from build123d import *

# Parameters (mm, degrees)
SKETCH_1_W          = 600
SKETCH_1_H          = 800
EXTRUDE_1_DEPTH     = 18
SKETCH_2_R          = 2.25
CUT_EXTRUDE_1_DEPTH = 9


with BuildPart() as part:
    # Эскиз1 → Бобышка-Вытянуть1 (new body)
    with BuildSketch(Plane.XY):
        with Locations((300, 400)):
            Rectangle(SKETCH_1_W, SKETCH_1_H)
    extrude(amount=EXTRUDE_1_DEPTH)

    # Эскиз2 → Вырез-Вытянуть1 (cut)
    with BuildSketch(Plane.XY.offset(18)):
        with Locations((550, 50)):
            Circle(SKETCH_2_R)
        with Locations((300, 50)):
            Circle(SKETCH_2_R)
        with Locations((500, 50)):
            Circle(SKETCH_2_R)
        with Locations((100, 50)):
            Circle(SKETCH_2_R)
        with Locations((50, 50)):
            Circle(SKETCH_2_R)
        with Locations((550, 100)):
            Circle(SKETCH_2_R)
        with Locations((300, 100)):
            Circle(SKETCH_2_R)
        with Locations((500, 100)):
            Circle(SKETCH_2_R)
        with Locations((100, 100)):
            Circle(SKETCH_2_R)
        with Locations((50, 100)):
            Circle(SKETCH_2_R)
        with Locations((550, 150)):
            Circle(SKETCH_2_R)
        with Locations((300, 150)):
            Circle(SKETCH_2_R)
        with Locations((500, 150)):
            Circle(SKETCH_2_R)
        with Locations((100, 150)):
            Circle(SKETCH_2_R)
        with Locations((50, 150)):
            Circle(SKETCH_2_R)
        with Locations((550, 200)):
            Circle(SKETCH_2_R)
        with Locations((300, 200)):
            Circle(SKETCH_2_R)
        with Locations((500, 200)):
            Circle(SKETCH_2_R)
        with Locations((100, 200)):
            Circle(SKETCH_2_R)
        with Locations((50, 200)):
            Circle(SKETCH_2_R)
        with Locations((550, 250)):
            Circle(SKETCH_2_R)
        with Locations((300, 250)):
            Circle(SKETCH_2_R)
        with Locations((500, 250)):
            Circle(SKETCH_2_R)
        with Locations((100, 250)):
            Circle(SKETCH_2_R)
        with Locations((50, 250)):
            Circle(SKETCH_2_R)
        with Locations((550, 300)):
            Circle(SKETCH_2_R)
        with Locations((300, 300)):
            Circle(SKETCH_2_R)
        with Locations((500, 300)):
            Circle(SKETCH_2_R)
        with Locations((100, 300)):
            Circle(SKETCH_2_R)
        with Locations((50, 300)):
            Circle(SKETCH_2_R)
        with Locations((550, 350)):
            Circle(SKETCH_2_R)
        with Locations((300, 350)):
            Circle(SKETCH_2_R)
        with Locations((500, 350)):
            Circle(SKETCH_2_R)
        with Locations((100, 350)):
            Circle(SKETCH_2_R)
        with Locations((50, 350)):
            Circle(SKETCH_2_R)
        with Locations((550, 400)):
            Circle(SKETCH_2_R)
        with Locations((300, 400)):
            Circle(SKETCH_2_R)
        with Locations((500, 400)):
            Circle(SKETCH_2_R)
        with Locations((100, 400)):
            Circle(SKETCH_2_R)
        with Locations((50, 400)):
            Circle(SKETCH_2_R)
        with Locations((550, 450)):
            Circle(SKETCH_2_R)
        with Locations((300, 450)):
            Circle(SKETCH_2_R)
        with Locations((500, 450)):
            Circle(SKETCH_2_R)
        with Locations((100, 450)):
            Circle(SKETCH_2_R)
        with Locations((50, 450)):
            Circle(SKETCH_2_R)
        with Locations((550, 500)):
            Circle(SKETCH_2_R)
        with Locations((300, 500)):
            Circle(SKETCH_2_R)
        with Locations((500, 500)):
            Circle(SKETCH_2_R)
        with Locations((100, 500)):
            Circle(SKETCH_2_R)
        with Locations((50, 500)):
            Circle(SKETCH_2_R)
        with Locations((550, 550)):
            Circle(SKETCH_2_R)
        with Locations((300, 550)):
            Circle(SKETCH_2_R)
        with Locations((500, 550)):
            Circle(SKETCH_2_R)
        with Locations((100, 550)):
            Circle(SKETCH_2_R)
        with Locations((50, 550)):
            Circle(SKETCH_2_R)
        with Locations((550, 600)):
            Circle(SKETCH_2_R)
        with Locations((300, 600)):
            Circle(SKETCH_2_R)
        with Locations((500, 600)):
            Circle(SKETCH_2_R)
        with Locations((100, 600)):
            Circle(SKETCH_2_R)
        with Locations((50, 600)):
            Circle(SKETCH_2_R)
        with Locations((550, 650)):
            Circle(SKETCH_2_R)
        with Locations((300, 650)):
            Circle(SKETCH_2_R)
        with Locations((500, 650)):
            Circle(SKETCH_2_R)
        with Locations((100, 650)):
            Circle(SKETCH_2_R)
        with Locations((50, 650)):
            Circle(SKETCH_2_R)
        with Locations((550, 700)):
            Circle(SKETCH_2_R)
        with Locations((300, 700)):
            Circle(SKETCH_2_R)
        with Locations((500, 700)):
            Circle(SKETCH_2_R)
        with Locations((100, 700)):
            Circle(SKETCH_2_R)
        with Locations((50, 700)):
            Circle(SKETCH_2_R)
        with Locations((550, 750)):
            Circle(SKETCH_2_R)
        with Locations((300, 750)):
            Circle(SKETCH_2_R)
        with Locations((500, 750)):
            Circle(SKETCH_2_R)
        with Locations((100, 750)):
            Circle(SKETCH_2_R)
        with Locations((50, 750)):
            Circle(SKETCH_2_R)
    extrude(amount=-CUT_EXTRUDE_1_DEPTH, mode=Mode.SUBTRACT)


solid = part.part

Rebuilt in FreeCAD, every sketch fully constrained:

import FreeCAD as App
import Part
import Sketcher
Q = App.Units.Quantity

doc = App.newDocument("Part")
params = doc.addObject("Spreadsheet::Sheet", "Params")
for row, (alias, value) in enumerate([
    ("sketch1_width", "600 mm"),
    ("sketch1_height", "800 mm"),
    ("pad1_length", "18 mm"),
    ("sketch2_diameter", "4.5 mm"),
    ("pocket1_length", "9 mm"),
], start=1):
    params.set(f"A{row}", alias)
    params.set(f"B{row}", "=" + value)
    params.setAlias(f"B{row}", alias)

body = doc.addObject("PartDesign::Body", "Body")

sketch1 = body.newObject("Sketcher::SketchObject", "Sketch")
sketch1.AttachmentSupport = (doc.getObject("XY_Plane"), [""])
sketch1.MapMode = "FlatFace"
sketch1.addGeometry([
    Part.LineSegment(App.Vector(0, 800, 0), App.Vector(0, 0, 0)),
    Part.LineSegment(App.Vector(0, 0, 0), App.Vector(600, 0, 0)),
    Part.LineSegment(App.Vector(600, 0, 0), App.Vector(600, 800, 0)),
    Part.LineSegment(App.Vector(600, 800, 0), App.Vector(0, 800, 0)),
], False)
sketch1.addConstraint([
    Sketcher.Constraint("Coincident", 0, 2, 1, 1),
    Sketcher.Constraint("Coincident", 1, 2, 2, 1),
    Sketcher.Constraint("Coincident", 2, 2, 3, 1),
    Sketcher.Constraint("Coincident", 3, 2, 0, 1),
    Sketcher.Constraint("Vertical", 0),
    Sketcher.Constraint("Horizontal", 1),
    Sketcher.Constraint("Vertical", 2),
    Sketcher.Constraint("Horizontal", 3),
    Sketcher.Constraint("Coincident", 0, 2, -1, 1),
    Sketcher.Constraint("DistanceX", 1, 1, 1, 2, Q("600 mm")),
    Sketcher.Constraint("DistanceY", 0, 2, 0, 1, Q("800 mm")),
])
sketch1.setExpression("Constraints[9]", "Params.sketch1_width")
sketch1.setExpression("Constraints[10]", "Params.sketch1_height")
pad1 = body.newObject("PartDesign::Pad", "Pad")
pad1.Profile = sketch1
pad1.setExpression("Length", "Params.pad1_length")

sketch2 = body.newObject("Sketcher::SketchObject", "Sketch001")
sketch2.AttachmentSupport = (doc.getObject("XY_Plane"), [""])
sketch2.MapMode = "FlatFace"
sketch2.AttachmentOffset = App.Placement(App.Vector(0, 0, 18), App.Rotation())
sketch2.addGeometry([
    Part.Circle(App.Vector(550, 50, 0), App.Vector(0, 0, 1), 2.2),
    Part.Circle(App.Vector(300, 50, 0), App.Vector(0, 0, 1), 2.2),
    Part.Circle(App.Vector(500, 50, 0), App.Vector(0, 0, 1), 2.2),
    Part.Circle(App.Vector(100, 50, 0), App.Vector(0, 0, 1), 2.2),
    Part.Circle(App.Vector(50, 50, 0), App.Vector(0, 0, 1), 2.2),
    Part.Circle(App.Vector(550, 100, 0), App.Vector(0, 0, 1), 2.2),
    Part.Circle(App.Vector(300, 100, 0), App.Vector(0, 0, 1), 2.2),
    Part.Circle(App.Vector(500, 100, 0), App.Vector(0, 0, 1), 2.2),
    Part.Circle(App.Vector(100, 100, 0), App.Vector(0, 0, 1), 2.2),
    Part.Circle(App.Vector(50, 100, 0), App.Vector(0, 0, 1), 2.2),
    Part.Circle(App.Vector(550, 150, 0), App.Vector(0, 0, 1), 2.2),
    Part.Circle(App.Vector(300, 150, 0), App.Vector(0, 0, 1), 2.2),
    Part.Circle(App.Vector(500, 150, 0), App.Vector(0, 0, 1), 2.2),
    Part.Circle(App.Vector(100, 150, 0), App.Vector(0, 0, 1), 2.2),
    Part.Circle(App.Vector(50, 150, 0), App.Vector(0, 0, 1), 2.2),
    Part.Circle(App.Vector(550, 200, 0), App.Vector(0, 0, 1), 2.2),
    Part.Circle(App.Vector(300, 200, 0), App.Vector(0, 0, 1), 2.2),
    Part.Circle(App.Vector(500, 200, 0), App.Vector(0, 0, 1), 2.2),
    Part.Circle(App.Vector(100, 200, 0), App.Vector(0, 0, 1), 2.2),
    Part.Circle(App.Vector(50, 200, 0), App.Vector(0, 0, 1), 2.2),
    Part.Circle(App.Vector(550, 250, 0), App.Vector(0, 0, 1), 2.2),
    Part.Circle(App.Vector(300, 250, 0), App.Vector(0, 0, 1), 2.2),
    Part.Circle(App.Vector(500, 250, 0), App.Vector(0, 0, 1), 2.2),
    Part.Circle(App.Vector(100, 250, 0), App.Vector(0, 0, 1), 2.2),
    Part.Circle(App.Vector(50, 250, 0), App.Vector(0, 0, 1), 2.2),
    Part.Circle(App.Vector(550, 300, 0), App.Vector(0, 0, 1), 2.2),
    Part.Circle(App.Vector(300, 300, 0), App.Vector(0, 0, 1), 2.2),
    Part.Circle(App.Vector(500, 300, 0), App.Vector(0, 0, 1), 2.2),
    Part.Circle(App.Vector(100, 300, 0), App.Vector(0, 0, 1), 2.2),
    Part.Circle(App.Vector(50, 300, 0), App.Vector(0, 0, 1), 2.2),
    Part.Circle(App.Vector(550, 350, 0), App.Vector(0, 0, 1), 2.2),
    Part.Circle(App.Vector(300, 350, 0), App.Vector(0, 0, 1), 2.2),
    Part.Circle(App.Vector(500, 350, 0), App.Vector(0, 0, 1), 2.2),
    Part.Circle(App.Vector(100, 350, 0), App.Vector(0, 0, 1), 2.2),
    Part.Circle(App.Vector(50, 350, 0), App.Vector(0, 0, 1), 2.2),
    Part.Circle(App.Vector(550, 400, 0), App.Vector(0, 0, 1), 2.2),
    Part.Circle(App.Vector(300, 400, 0), App.Vector(0, 0, 1), 2.2),
    Part.Circle(App.Vector(500, 400, 0), App.Vector(0, 0, 1), 2.2),
    Part.Circle(App.Vector(100, 400, 0), App.Vector(0, 0, 1), 2.2),
    Part.Circle(App.Vector(50, 400, 0), App.Vector(0, 0, 1), 2.2),
    Part.Circle(App.Vector(550, 450, 0), App.Vector(0, 0, 1), 2.2),
    Part.Circle(App.Vector(300, 450, 0), App.Vector(0, 0, 1), 2.2),
    Part.Circle(App.Vector(500, 450, 0), App.Vector(0, 0, 1), 2.2),
    Part.Circle(App.Vector(100, 450, 0), App.Vector(0, 0, 1), 2.2),
    Part.Circle(App.Vector(50, 450, 0), App.Vector(0, 0, 1), 2.2),
    Part.Circle(App.Vector(550, 500, 0), App.Vector(0, 0, 1), 2.2),
    Part.Circle(App.Vector(300, 500, 0), App.Vector(0, 0, 1), 2.2),
    Part.Circle(App.Vector(500, 500, 0), App.Vector(0, 0, 1), 2.2),
    Part.Circle(App.Vector(100, 500, 0), App.Vector(0, 0, 1), 2.2),
    Part.Circle(App.Vector(50, 500, 0), App.Vector(0, 0, 1), 2.2),
    Part.Circle(App.Vector(550, 550, 0), App.Vector(0, 0, 1), 2.2),
    Part.Circle(App.Vector(300, 550, 0), App.Vector(0, 0, 1), 2.2),
    Part.Circle(App.Vector(500, 550, 0), App.Vector(0, 0, 1), 2.2),
    Part.Circle(App.Vector(100, 550, 0), App.Vector(0, 0, 1), 2.2),
    Part.Circle(App.Vector(50, 550, 0), App.Vector(0, 0, 1), 2.2),
    Part.Circle(App.Vector(550, 600, 0), App.Vector(0, 0, 1), 2.2),
    Part.Circle(App.Vector(300, 600, 0), App.Vector(0, 0, 1), 2.2),
    Part.Circle(App.Vector(500, 600, 0), App.Vector(0, 0, 1), 2.2),
    Part.Circle(App.Vector(100, 600, 0), App.Vector(0, 0, 1), 2.2),
    Part.Circle(App.Vector(50, 600, 0), App.Vector(0, 0, 1), 2.2),
    Part.Circle(App.Vector(550, 650, 0), App.Vector(0, 0, 1), 2.2),
    Part.Circle(App.Vector(300, 650, 0), App.Vector(0, 0, 1), 2.2),
    Part.Circle(App.Vector(500, 650, 0), App.Vector(0, 0, 1), 2.2),
    Part.Circle(App.Vector(100, 650, 0), App.Vector(0, 0, 1), 2.2),
    Part.Circle(App.Vector(50, 650, 0), App.Vector(0, 0, 1), 2.2),
    Part.Circle(App.Vector(550, 700, 0), App.Vector(0, 0, 1), 2.2),
    Part.Circle(App.Vector(300, 700, 0), App.Vector(0, 0, 1), 2.2),
    Part.Circle(App.Vector(500, 700, 0), App.Vector(0, 0, 1), 2.2),
    Part.Circle(App.Vector(100, 700, 0), App.Vector(0, 0, 1), 2.2),
    Part.Circle(App.Vector(50, 700, 0), App.Vector(0, 0, 1), 2.2),
    Part.Circle(App.Vector(550, 750, 0), App.Vector(0, 0, 1), 2.2),
    Part.Circle(App.Vector(300, 750, 0), App.Vector(0, 0, 1), 2.2),
    Part.Circle(App.Vector(500, 750, 0), App.Vector(0, 0, 1), 2.2),
    Part.Circle(App.Vector(100, 750, 0), App.Vector(0, 0, 1), 2.2),
    Part.Circle(App.Vector(50, 750, 0), App.Vector(0, 0, 1), 2.2),
], False)
sketch2.addConstraint([
    Sketcher.Constraint("Equal", 0, 1),
    Sketcher.Constraint("Equal", 1, 2),
    Sketcher.Constraint("Equal", 2, 3),
    Sketcher.Constraint("Equal", 3, 4),
    Sketcher.Constraint("Equal", 4, 5),
    Sketcher.Constraint("Equal", 5, 6),
    Sketcher.Constraint("Equal", 6, 7),
    Sketcher.Constraint("Equal", 7, 8),
    Sketcher.Constraint("Equal", 8, 9),
    Sketcher.Constraint("Equal", 9, 10),
    Sketcher.Constraint("Equal", 10, 11),
    Sketcher.Constraint("Equal", 11, 12),
    Sketcher.Constraint("Equal", 12, 13),
    Sketcher.Constraint("Equal", 13, 14),
    Sketcher.Constraint("Equal", 14, 15),
    Sketcher.Constraint("Equal", 15, 16),
    Sketcher.Constraint("Equal", 16, 17),
    Sketcher.Constraint("Equal", 17, 18),
    Sketcher.Constraint("Equal", 18, 19),
    Sketcher.Constraint("Equal", 19, 20),
    Sketcher.Constraint("Equal", 20, 21),
    Sketcher.Constraint("Equal", 21, 22),
    Sketcher.Constraint("Equal", 22, 23),
    Sketcher.Constraint("Equal", 23, 24),
    Sketcher.Constraint("Equal", 24, 25),
    Sketcher.Constraint("Equal", 25, 26),
    Sketcher.Constraint("Equal", 26, 27),
    Sketcher.Constraint("Equal", 27, 28),
    Sketcher.Constraint("Equal", 28, 29),
    Sketcher.Constraint("Equal", 29, 30),
    Sketcher.Constraint("Equal", 30, 31),
    Sketcher.Constraint("Equal", 31, 32),
    Sketcher.Constraint("Equal", 32, 33),
    Sketcher.Constraint("Equal", 33, 34),
    Sketcher.Constraint("Equal", 34, 35),
    Sketcher.Constraint("Equal", 35, 36),
    Sketcher.Constraint("Equal", 36, 37),
    Sketcher.Constraint("Equal", 37, 38),
    Sketcher.Constraint("Equal", 38, 39),
    Sketcher.Constraint("Equal", 39, 40),
    Sketcher.Constraint("Equal", 40, 41),
    Sketcher.Constraint("Equal", 41, 42),
    Sketcher.Constraint("Equal", 42, 43),
    Sketcher.Constraint("Equal", 43, 44),
    Sketcher.Constraint("Equal", 44, 45),
    Sketcher.Constraint("Equal", 45, 46),
    Sketcher.Constraint("Equal", 46, 47),
    Sketcher.Constraint("Equal", 47, 48),
    Sketcher.Constraint("Equal", 48, 49),
    Sketcher.Constraint("Equal", 49, 50),
    Sketcher.Constraint("Equal", 50, 51),
    Sketcher.Constraint("Equal", 51, 52),
    Sketcher.Constraint("Equal", 52, 53),
    Sketcher.Constraint("Equal", 53, 54),
    Sketcher.Constraint("Equal", 54, 55),
    Sketcher.Constraint("Equal", 55, 56),
    Sketcher.Constraint("Equal", 56, 57),
    Sketcher.Constraint("Equal", 57, 58),
    Sketcher.Constraint("Equal", 58, 59),
    Sketcher.Constraint("Equal", 59, 60),
    Sketcher.Constraint("Equal", 60, 61),
    Sketcher.Constraint("Equal", 61, 62),
    Sketcher.Constraint("Equal", 62, 63),
    Sketcher.Constraint("Equal", 63, 64),
    Sketcher.Constraint("Equal", 64, 65),
    Sketcher.Constraint("Equal", 65, 66),
    Sketcher.Constraint("Equal", 66, 67),
    Sketcher.Constraint("Equal", 67, 68),
    Sketcher.Constraint("Equal", 68, 69),
    Sketcher.Constraint("Equal", 69, 70),
    Sketcher.Constraint("Equal", 70, 71),
    Sketcher.Constraint("Equal", 71, 72),
    Sketcher.Constraint("Equal", 72, 73),
    Sketcher.Constraint("Equal", 73, 74),
    Sketcher.Constraint("Horizontal", 0, 3, 1, 3),
    Sketcher.Constraint("Horizontal", 1, 3, 2, 3),
    Sketcher.Constraint("Horizontal", 2, 3, 3, 3),
    Sketcher.Constraint("Horizontal", 3, 3, 4, 3),
    Sketcher.Constraint("Horizontal", 5, 3, 6, 3),
    Sketcher.Constraint("Horizontal", 6, 3, 7, 3),
    Sketcher.Constraint("Horizontal", 7, 3, 8, 3),
    Sketcher.Constraint("Horizontal", 8, 3, 9, 3),
    Sketcher.Constraint("Horizontal", 10, 3, 11, 3),
    Sketcher.Constraint("Horizontal", 11, 3, 12, 3),
    Sketcher.Constraint("Horizontal", 12, 3, 13, 3),
    Sketcher.Constraint("Horizontal", 13, 3, 14, 3),
    Sketcher.Constraint("Horizontal", 15, 3, 16, 3),
    Sketcher.Constraint("Horizontal", 16, 3, 17, 3),
    Sketcher.Constraint("Horizontal", 17, 3, 18, 3),
    Sketcher.Constraint("Horizontal", 18, 3, 19, 3),
    Sketcher.Constraint("Horizontal", 20, 3, 21, 3),
    Sketcher.Constraint("Horizontal", 21, 3, 22, 3),
    Sketcher.Constraint("Horizontal", 22, 3, 23, 3),
    Sketcher.Constraint("Horizontal", 23, 3, 24, 3),
    Sketcher.Constraint("Horizontal", 25, 3, 26, 3),
    Sketcher.Constraint("Horizontal", 26, 3, 27, 3),
    Sketcher.Constraint("Horizontal", 27, 3, 28, 3),
    Sketcher.Constraint("Horizontal", 28, 3, 29, 3),
    Sketcher.Constraint("Horizontal", 30, 3, 31, 3),
    Sketcher.Constraint("Horizontal", 31, 3, 32, 3),
    Sketcher.Constraint("Horizontal", 32, 3, 33, 3),
    Sketcher.Constraint("Horizontal", 33, 3, 34, 3),
    Sketcher.Constraint("Horizontal", 35, 3, 36, 3),
    Sketcher.Constraint("Horizontal", 36, 3, 37, 3),
    Sketcher.Constraint("Horizontal", 37, 3, 38, 3),
    Sketcher.Constraint("Horizontal", 38, 3, 39, 3),
    Sketcher.Constraint("Horizontal", 40, 3, 41, 3),
    Sketcher.Constraint("Horizontal", 41, 3, 42, 3),
    Sketcher.Constraint("Horizontal", 42, 3, 43, 3),
    Sketcher.Constraint("Horizontal", 43, 3, 44, 3),
    Sketcher.Constraint("Horizontal", 45, 3, 46, 3),
    Sketcher.Constraint("Horizontal", 46, 3, 47, 3),
    Sketcher.Constraint("Horizontal", 47, 3, 48, 3),
    Sketcher.Constraint("Horizontal", 48, 3, 49, 3),
    Sketcher.Constraint("Horizontal", 50, 3, 51, 3),
    Sketcher.Constraint("Horizontal", 51, 3, 52, 3),
    Sketcher.Constraint("Horizontal", 52, 3, 53, 3),
    Sketcher.Constraint("Horizontal", 53, 3, 54, 3),
    Sketcher.Constraint("Horizontal", 55, 3, 56, 3),
    Sketcher.Constraint("Horizontal", 56, 3, 57, 3),
    Sketcher.Constraint("Horizontal", 57, 3, 58, 3),
    Sketcher.Constraint("Horizontal", 58, 3, 59, 3),
    Sketcher.Constraint("Horizontal", 60, 3, 61, 3),
    Sketcher.Constraint("Horizontal", 61, 3, 62, 3),
    Sketcher.Constraint("Horizontal", 62, 3, 63, 3),
    Sketcher.Constraint("Horizontal", 63, 3, 64, 3),
    Sketcher.Constraint("Horizontal", 65, 3, 66, 3),
    Sketcher.Constraint("Horizontal", 66, 3, 67, 3),
    Sketcher.Constraint("Horizontal", 67, 3, 68, 3),
    Sketcher.Constraint("Horizontal", 68, 3, 69, 3),
    Sketcher.Constraint("Horizontal", 70, 3, 71, 3),
    Sketcher.Constraint("Horizontal", 71, 3, 72, 3),
    Sketcher.Constraint("Horizontal", 72, 3, 73, 3),
    Sketcher.Constraint("Horizontal", 73, 3, 74, 3),
    Sketcher.Constraint("Vertical", 0, 3, 5, 3),
    Sketcher.Constraint("Vertical", 1, 3, 6, 3),
    Sketcher.Constraint("Vertical", 2, 3, 7, 3),
    Sketcher.Constraint("Vertical", 3, 3, 8, 3),
    Sketcher.Constraint("Vertical", 4, 3, 9, 3),
    Sketcher.Constraint("Vertical", 5, 3, 10, 3),
    Sketcher.Constraint("Vertical", 6, 3, 11, 3),
    Sketcher.Constraint("Vertical", 7, 3, 12, 3),
    Sketcher.Constraint("Vertical", 8, 3, 13, 3),
    Sketcher.Constraint("Vertical", 9, 3, 14, 3),
    Sketcher.Constraint("Vertical", 10, 3, 15, 3),
    Sketcher.Constraint("Vertical", 11, 3, 16, 3),
    Sketcher.Constraint("Vertical", 12, 3, 17, 3),
    Sketcher.Constraint("Vertical", 13, 3, 18, 3),
    Sketcher.Constraint("Vertical", 14, 3, 19, 3),
    Sketcher.Constraint("Vertical", 15, 3, 20, 3),
    Sketcher.Constraint("Vertical", 16, 3, 21, 3),
    Sketcher.Constraint("Vertical", 17, 3, 22, 3),
    Sketcher.Constraint("Vertical", 18, 3, 23, 3),
    Sketcher.Constraint("Vertical", 19, 3, 24, 3),
    Sketcher.Constraint("Vertical", 20, 3, 25, 3),
    Sketcher.Constraint("Vertical", 21, 3, 26, 3),
    Sketcher.Constraint("Vertical", 22, 3, 27, 3),
    Sketcher.Constraint("Vertical", 23, 3, 28, 3),
    Sketcher.Constraint("Vertical", 24, 3, 29, 3),
    Sketcher.Constraint("Vertical", 25, 3, 30, 3),
    Sketcher.Constraint("Vertical", 26, 3, 31, 3),
    Sketcher.Constraint("Vertical", 27, 3, 32, 3),
    Sketcher.Constraint("Vertical", 28, 3, 33, 3),
    Sketcher.Constraint("Vertical", 29, 3, 34, 3),
    Sketcher.Constraint("Vertical", 30, 3, 35, 3),
    Sketcher.Constraint("Vertical", 31, 3, 36, 3),
    Sketcher.Constraint("Vertical", 32, 3, 37, 3),
    Sketcher.Constraint("Vertical", 33, 3, 38, 3),
    Sketcher.Constraint("Vertical", 34, 3, 39, 3),
    Sketcher.Constraint("Vertical", 35, 3, 40, 3),
    Sketcher.Constraint("Vertical", 36, 3, 41, 3),
    Sketcher.Constraint("Vertical", 37, 3, 42, 3),
    Sketcher.Constraint("Vertical", 38, 3, 43, 3),
    Sketcher.Constraint("Vertical", 39, 3, 44, 3),
    Sketcher.Constraint("Vertical", 40, 3, 45, 3),
    Sketcher.Constraint("Vertical", 41, 3, 46, 3),
    Sketcher.Constraint("Vertical", 42, 3, 47, 3),
    Sketcher.Constraint("Vertical", 43, 3, 48, 3),
    Sketcher.Constraint("Vertical", 44, 3, 49, 3),
    Sketcher.Constraint("Vertical", 45, 3, 50, 3),
    Sketcher.Constraint("Vertical", 46, 3, 51, 3),
    Sketcher.Constraint("Vertical", 47, 3, 52, 3),
    Sketcher.Constraint("Vertical", 48, 3, 53, 3),
    Sketcher.Constraint("Vertical", 49, 3, 54, 3),
    Sketcher.Constraint("Vertical", 50, 3, 55, 3),
    Sketcher.Constraint("Vertical", 51, 3, 56, 3),
    Sketcher.Constraint("Vertical", 52, 3, 57, 3),
    Sketcher.Constraint("Vertical", 53, 3, 58, 3),
    Sketcher.Constraint("Vertical", 54, 3, 59, 3),
    Sketcher.Constraint("Vertical", 55, 3, 60, 3),
    Sketcher.Constraint("Vertical", 56, 3, 61, 3),
    Sketcher.Constraint("Vertical", 57, 3, 62, 3),
    Sketcher.Constraint("Vertical", 58, 3, 63, 3),
    Sketcher.Constraint("Vertical", 59, 3, 64, 3),
    Sketcher.Constraint("Vertical", 60, 3, 65, 3),
    Sketcher.Constraint("Vertical", 61, 3, 66, 3),
    Sketcher.Constraint("Vertical", 62, 3, 67, 3),
    Sketcher.Constraint("Vertical", 63, 3, 68, 3),
    Sketcher.Constraint("Vertical", 64, 3, 69, 3),
    Sketcher.Constraint("Vertical", 65, 3, 70, 3),
    Sketcher.Constraint("Vertical", 66, 3, 71, 3),
    Sketcher.Constraint("Vertical", 67, 3, 72, 3),
    Sketcher.Constraint("Vertical", 68, 3, 73, 3),
    Sketcher.Constraint("Vertical", 69, 3, 74, 3),
    Sketcher.Constraint("Diameter", 0, Q("4.5 mm")),
    Sketcher.Constraint("DistanceX", -1, 1, 0, 3, Q("550 mm")),
    Sketcher.Constraint("DistanceY", -1, 1, 0, 3, Q("50 mm")),
    Sketcher.Constraint("DistanceX", -1, 1, 1, 3, Q("300 mm")),
    Sketcher.Constraint("DistanceX", -1, 1, 2, 3, Q("500 mm")),
    Sketcher.Constraint("DistanceX", -1, 1, 3, 3, Q("100 mm")),
    Sketcher.Constraint("DistanceX", -1, 1, 4, 3, Q("50 mm")),
    Sketcher.Constraint("DistanceY", -1, 1, 5, 3, Q("100 mm")),
    Sketcher.Constraint("DistanceY", -1, 1, 10, 3, Q("150 mm")),
    Sketcher.Constraint("DistanceY", -1, 1, 15, 3, Q("200 mm")),
    Sketcher.Constraint("DistanceY", -1, 1, 20, 3, Q("250 mm")),
    Sketcher.Constraint("DistanceY", -1, 1, 25, 3, Q("300 mm")),
    Sketcher.Constraint("DistanceY", -1, 1, 30, 3, Q("350 mm")),
    Sketcher.Constraint("DistanceY", -1, 1, 35, 3, Q("400 mm")),
    Sketcher.Constraint("DistanceY", -1, 1, 40, 3, Q("450 mm")),
    Sketcher.Constraint("DistanceY", -1, 1, 45, 3, Q("500 mm")),
    Sketcher.Constraint("DistanceY", -1, 1, 50, 3, Q("550 mm")),
    Sketcher.Constraint("DistanceY", -1, 1, 55, 3, Q("600 mm")),
    Sketcher.Constraint("DistanceY", -1, 1, 60, 3, Q("650 mm")),
    Sketcher.Constraint("DistanceY", -1, 1, 65, 3, Q("700 mm")),
    Sketcher.Constraint("DistanceY", -1, 1, 70, 3, Q("750 mm")),
])
sketch2.setExpression("Constraints[204]", "Params.sketch2_diameter")
pocket1 = body.newObject("PartDesign::Pocket", "Pocket")
pocket1.Profile = sketch2
pocket1.setExpression("Length", "Params.pocket1_length")

doc.recompute()
